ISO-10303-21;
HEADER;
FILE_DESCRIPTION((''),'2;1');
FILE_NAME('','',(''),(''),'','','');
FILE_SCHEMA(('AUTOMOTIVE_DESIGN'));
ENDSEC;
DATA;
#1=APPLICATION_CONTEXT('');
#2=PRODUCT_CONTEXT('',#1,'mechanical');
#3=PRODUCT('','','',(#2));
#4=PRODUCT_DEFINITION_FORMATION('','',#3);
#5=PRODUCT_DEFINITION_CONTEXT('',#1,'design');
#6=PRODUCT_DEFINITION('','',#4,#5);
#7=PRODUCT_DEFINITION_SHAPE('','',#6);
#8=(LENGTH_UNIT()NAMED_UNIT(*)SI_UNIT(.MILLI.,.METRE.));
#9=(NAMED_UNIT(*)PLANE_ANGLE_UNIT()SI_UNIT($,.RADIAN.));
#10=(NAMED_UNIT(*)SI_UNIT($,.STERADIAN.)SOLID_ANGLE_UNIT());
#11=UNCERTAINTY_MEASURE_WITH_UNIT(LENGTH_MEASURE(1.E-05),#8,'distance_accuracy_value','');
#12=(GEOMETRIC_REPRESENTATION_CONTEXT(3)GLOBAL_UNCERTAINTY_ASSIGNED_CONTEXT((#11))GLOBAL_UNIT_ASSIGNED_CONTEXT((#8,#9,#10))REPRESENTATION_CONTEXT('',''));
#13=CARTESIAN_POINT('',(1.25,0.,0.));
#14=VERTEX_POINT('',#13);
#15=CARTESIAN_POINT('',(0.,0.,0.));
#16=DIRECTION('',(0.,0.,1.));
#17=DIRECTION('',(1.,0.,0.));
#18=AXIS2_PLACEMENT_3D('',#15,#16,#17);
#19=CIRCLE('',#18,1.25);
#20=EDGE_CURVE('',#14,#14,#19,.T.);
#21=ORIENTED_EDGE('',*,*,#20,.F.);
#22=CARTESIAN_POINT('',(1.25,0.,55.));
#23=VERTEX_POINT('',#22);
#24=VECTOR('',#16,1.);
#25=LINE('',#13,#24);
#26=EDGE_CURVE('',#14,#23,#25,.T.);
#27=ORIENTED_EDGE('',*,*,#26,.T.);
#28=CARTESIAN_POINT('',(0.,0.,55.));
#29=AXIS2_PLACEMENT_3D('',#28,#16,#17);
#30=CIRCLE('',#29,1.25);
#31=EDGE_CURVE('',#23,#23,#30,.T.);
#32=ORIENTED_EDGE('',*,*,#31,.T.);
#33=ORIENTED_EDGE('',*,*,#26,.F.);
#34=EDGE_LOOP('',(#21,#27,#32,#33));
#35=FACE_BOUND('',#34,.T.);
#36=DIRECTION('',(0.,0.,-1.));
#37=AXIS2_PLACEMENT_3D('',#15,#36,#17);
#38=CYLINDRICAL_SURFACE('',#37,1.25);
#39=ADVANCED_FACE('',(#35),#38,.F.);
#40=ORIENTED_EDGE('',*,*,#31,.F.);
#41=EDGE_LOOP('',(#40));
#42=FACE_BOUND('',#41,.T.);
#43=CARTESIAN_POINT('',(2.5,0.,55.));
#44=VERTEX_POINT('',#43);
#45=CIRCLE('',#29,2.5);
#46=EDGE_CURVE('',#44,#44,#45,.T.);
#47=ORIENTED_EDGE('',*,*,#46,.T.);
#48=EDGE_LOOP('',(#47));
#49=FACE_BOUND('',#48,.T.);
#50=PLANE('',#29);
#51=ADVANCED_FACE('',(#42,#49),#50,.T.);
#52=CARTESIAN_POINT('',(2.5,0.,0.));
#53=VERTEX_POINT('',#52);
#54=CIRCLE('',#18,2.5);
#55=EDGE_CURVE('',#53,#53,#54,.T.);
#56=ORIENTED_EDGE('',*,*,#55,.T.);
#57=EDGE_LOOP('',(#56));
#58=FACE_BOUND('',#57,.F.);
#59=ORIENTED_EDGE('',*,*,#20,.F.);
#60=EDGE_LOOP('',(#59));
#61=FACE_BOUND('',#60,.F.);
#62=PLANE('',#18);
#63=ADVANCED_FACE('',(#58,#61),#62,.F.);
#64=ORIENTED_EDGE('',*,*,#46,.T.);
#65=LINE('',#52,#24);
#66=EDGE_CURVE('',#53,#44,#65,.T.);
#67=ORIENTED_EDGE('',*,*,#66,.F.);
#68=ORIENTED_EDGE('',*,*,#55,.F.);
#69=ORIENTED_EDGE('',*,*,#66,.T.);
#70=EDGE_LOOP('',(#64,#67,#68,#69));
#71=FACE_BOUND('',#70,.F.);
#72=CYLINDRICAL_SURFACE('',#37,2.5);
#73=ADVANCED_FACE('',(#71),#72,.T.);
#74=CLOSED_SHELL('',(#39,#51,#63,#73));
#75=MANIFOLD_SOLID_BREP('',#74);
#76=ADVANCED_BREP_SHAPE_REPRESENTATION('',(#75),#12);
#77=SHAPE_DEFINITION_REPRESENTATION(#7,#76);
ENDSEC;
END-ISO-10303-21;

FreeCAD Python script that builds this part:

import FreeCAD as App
import Part
import Sketcher
from FreeCAD import Vector
Q = App.Units.Quantity

doc = App.newDocument("Part")
body = doc.addObject("PartDesign::Body", "Body")

sketch1 = body.newObject("Sketcher::SketchObject", "Sketch")
sketch1.AttachmentSupport = (doc.getObject("XY_Plane"), [""])
sketch1.MapMode = "FlatFace"
sketch1.addGeometry([
    Part.Circle(Vector(0, 0, 0), Vector(0, 0, 1), 2.5),
    Part.Circle(Vector(0, 0, 0), Vector(0, 0, 1), 1.2),
], False)
sketch1.addConstraint([
    Sketcher.Constraint("Coincident", 0, 3, -1, 1),
    Sketcher.Constraint("Coincident", 1, 3, -1, 1),
    Sketcher.Constraint("Diameter", 0, Q("5 mm")),
    Sketcher.Constraint("Diameter", 1, Q("2.5 mm")),
])
pad1 = body.newObject("PartDesign::Pad", "Pad")
pad1.Profile = sketch1
pad1.Length = 55

doc.recompute()
